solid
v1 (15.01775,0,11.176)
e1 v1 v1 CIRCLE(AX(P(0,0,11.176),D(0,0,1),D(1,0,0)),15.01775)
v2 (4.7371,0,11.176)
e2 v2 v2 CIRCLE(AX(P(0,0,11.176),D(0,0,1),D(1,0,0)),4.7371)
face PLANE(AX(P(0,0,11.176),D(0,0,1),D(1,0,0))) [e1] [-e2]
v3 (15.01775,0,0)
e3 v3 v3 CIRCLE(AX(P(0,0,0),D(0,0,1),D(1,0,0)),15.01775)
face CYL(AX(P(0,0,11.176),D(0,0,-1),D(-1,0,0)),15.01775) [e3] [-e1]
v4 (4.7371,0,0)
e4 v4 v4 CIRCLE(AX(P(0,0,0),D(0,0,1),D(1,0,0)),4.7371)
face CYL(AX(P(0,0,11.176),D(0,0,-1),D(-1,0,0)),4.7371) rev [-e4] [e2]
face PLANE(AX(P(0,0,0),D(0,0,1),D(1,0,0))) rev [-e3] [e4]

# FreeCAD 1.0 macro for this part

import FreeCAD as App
import Part
import Sketcher
Q = App.Units.Quantity

doc = App.newDocument("Part")
body = doc.addObject("PartDesign::Body", "Body")

sketch1 = body.newObject("Sketcher::SketchObject", "Sketch")
sketch1.AttachmentSupport = (doc.getObject("XY_Plane"), [""])
sketch1.MapMode = "FlatFace"
sketch1.addGeometry([
    Part.Circle(App.Vector(0, 0, 0), App.Vector(0, 0, 1), 15),
    Part.Circle(App.Vector(0, 0, 0), App.Vector(0, 0, 1), 4.7),
], False)
sketch1.addConstraint([
    Sketcher.Constraint("Coincident", 0, 3, -1, 1),
    Sketcher.Constraint("Coincident", 1, 3, -1, 1),
    Sketcher.Constraint("Diameter", 1, Q("0.373 in")),
    Sketcher.Constraint("Diameter", 0, Q("1.1825 in")),
])
pad1 = body.newObject("PartDesign::Pad", "Pad")
pad1.Profile = sketch1
pad1.Length = Q("0.44 in")

doc.recompute()
